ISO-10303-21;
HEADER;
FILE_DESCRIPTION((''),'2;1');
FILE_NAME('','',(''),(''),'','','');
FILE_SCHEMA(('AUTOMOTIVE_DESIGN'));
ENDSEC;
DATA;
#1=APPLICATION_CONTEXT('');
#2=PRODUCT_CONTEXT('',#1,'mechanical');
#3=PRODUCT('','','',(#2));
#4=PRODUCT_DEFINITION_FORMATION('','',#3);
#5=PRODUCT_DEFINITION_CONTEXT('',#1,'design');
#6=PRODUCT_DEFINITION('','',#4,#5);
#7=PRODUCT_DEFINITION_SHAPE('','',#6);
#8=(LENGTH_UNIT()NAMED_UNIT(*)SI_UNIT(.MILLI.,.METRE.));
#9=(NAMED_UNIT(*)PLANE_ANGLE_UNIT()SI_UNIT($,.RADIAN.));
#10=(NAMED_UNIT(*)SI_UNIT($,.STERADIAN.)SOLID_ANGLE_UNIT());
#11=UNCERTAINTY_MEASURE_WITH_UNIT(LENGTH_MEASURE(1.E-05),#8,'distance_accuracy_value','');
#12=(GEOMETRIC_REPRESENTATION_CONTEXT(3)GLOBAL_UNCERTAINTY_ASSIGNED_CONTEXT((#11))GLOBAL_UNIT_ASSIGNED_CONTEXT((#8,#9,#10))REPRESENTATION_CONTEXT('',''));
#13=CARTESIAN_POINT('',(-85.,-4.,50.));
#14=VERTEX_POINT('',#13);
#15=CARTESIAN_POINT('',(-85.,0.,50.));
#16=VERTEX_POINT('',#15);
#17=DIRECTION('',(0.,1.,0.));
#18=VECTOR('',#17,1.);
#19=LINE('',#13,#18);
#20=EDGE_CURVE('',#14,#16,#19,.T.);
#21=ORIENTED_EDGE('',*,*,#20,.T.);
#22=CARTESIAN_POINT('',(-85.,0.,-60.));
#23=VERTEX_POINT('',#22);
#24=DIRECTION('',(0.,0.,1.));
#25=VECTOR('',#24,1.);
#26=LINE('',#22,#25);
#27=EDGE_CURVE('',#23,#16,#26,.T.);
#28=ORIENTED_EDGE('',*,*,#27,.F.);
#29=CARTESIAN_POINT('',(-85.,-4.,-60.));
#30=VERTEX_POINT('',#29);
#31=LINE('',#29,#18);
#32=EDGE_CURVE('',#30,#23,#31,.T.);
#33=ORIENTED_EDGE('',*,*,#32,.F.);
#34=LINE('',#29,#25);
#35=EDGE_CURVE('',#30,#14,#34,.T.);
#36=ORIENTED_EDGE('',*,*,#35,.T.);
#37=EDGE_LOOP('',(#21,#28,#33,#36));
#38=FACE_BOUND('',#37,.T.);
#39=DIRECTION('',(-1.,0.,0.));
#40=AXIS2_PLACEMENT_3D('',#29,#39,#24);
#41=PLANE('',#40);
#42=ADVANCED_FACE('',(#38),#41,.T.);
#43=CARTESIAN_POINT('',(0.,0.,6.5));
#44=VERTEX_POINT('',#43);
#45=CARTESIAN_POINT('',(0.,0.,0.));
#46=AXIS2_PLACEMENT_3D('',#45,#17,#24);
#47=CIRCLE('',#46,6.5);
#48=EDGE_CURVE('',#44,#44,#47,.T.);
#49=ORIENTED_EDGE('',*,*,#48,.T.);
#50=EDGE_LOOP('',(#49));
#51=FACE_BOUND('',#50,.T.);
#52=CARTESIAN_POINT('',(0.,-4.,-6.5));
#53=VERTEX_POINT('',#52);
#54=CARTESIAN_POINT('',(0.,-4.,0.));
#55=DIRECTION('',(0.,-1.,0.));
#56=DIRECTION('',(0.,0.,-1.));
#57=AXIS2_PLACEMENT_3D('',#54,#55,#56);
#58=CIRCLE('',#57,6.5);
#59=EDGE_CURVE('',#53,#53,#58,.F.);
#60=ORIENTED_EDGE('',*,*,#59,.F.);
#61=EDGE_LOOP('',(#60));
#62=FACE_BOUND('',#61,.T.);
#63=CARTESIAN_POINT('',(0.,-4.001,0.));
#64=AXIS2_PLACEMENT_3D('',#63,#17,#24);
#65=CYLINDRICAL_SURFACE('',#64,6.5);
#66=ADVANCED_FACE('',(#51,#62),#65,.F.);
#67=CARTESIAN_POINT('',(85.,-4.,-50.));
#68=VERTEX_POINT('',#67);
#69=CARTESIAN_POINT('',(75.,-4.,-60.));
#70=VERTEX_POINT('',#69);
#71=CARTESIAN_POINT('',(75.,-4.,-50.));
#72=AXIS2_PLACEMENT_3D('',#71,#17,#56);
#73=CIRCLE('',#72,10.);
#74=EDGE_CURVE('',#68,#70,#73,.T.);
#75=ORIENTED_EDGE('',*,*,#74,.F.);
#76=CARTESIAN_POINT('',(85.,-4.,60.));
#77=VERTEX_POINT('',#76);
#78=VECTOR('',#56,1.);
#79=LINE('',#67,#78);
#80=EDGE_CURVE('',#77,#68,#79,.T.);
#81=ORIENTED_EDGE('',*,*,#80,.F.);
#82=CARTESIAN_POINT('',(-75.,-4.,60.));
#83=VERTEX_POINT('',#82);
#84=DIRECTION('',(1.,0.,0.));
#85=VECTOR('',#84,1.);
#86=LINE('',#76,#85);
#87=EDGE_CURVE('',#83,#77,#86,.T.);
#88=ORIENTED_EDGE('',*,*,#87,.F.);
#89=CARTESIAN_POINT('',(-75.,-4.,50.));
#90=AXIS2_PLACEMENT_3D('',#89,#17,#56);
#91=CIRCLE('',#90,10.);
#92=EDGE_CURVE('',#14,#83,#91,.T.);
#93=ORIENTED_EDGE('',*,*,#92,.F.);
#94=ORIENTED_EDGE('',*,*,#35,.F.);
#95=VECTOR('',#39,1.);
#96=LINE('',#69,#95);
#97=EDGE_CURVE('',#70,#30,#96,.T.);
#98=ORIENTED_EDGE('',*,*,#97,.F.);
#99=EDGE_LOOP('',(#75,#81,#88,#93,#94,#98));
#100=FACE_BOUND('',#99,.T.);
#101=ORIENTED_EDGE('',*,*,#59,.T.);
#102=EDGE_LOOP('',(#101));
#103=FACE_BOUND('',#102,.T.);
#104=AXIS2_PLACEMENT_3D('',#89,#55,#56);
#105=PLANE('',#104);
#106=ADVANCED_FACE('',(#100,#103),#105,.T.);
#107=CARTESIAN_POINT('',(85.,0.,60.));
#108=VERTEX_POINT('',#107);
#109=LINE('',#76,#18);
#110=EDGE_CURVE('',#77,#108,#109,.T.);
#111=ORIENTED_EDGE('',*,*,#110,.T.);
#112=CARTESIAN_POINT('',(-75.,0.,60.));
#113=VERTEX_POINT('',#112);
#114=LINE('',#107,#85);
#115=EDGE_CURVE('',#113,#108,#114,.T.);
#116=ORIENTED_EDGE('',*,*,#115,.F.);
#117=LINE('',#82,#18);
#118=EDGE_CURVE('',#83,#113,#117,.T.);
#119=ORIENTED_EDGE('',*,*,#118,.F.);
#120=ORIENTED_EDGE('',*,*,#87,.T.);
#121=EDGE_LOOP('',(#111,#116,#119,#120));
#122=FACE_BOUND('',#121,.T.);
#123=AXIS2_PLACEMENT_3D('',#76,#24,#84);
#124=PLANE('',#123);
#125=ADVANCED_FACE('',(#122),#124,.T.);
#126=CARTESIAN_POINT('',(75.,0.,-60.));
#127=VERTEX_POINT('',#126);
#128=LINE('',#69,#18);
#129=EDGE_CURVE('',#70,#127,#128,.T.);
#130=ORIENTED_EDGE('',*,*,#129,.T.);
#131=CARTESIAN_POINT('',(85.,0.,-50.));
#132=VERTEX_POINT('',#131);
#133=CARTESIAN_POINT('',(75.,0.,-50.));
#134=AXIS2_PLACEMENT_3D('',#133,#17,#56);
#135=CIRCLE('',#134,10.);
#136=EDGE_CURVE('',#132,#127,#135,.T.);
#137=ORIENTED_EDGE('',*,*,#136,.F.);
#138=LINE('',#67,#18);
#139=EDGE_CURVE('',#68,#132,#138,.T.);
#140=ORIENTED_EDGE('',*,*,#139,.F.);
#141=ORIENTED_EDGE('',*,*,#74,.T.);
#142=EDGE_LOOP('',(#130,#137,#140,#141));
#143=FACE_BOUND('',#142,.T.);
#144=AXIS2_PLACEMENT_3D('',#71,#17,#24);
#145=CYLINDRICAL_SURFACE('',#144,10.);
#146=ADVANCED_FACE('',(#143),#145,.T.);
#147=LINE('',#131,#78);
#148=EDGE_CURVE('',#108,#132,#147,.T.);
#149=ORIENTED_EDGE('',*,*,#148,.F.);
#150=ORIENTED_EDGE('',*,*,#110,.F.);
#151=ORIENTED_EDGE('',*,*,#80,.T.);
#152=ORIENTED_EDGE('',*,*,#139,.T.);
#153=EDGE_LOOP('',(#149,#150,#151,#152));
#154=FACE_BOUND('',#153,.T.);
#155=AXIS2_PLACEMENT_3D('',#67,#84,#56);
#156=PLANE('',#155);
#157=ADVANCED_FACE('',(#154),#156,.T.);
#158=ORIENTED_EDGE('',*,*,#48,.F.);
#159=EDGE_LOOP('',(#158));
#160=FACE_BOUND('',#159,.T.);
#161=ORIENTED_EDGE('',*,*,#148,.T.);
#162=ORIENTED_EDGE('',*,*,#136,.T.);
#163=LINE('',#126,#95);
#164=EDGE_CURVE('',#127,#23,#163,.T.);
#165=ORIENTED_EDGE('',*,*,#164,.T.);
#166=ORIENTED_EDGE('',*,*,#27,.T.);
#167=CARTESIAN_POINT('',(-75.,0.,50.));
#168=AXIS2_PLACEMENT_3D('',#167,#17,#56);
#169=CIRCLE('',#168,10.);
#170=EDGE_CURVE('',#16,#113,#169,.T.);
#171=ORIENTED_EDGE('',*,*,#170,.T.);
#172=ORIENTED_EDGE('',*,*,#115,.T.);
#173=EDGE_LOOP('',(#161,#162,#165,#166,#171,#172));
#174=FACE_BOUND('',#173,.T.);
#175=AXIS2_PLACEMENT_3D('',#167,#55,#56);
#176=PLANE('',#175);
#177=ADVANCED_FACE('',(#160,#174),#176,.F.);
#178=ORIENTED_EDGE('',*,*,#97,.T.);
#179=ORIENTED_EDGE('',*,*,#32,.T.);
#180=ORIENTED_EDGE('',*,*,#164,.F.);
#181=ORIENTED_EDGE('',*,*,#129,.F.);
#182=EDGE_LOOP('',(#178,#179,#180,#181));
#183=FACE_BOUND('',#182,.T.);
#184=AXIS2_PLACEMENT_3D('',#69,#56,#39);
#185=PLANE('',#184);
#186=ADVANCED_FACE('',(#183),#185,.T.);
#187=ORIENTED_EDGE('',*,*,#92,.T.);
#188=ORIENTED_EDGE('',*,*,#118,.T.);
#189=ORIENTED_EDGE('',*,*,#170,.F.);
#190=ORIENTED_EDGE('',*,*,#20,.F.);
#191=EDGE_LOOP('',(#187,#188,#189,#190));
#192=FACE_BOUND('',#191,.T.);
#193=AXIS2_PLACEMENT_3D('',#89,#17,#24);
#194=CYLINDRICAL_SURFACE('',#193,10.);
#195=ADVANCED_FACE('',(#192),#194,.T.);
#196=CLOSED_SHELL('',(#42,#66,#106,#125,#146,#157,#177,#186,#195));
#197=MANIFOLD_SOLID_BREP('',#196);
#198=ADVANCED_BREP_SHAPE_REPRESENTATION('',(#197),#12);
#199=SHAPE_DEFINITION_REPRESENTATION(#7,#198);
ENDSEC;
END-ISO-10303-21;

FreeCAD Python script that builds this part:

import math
import FreeCAD as App
import Part
import Sketcher

doc = App.newDocument("Part")
body = doc.addObject("PartDesign::Body", "Body")

# Sketch on XZ plane
sketch1 = doc.addObject("Sketcher::SketchObject", "Sketch")
body.addObject(sketch1)
sketch1.AttachmentSupport = (doc.XZ_Plane, [""])
sketch1.MapMode = "FlatFace"
sketch1.addGeometry([
    Part.LineSegment(App.Vector(75, -60, 0), App.Vector(-85, -60, 0)),  # 0
    Part.LineSegment(App.Vector(-85, -60, 0), App.Vector(-85, 50, 0)),  # 1
    Part.ArcOfCircle(Part.Circle(App.Vector(-75, 50, 0), App.Vector(0, 0, 1), 10), math.radians(90), math.radians(180)),  # 2
    Part.LineSegment(App.Vector(-75, 60, 0), App.Vector(85, 60, 0)),  # 3
    Part.LineSegment(App.Vector(85, 60, 0), App.Vector(85, -50, 0)),  # 4
    Part.ArcOfCircle(Part.Circle(App.Vector(75, -50, 0), App.Vector(0, 0, 1), 10), math.radians(-90), math.radians(0)),  # 5
], False)
sketch1.addConstraint([
    Sketcher.Constraint("Coincident", 0, 2, 1, 1),
    Sketcher.Constraint("Tangent", 1, 2, 2, 2),
    Sketcher.Constraint("Tangent", 2, 1, 3, 1),
    Sketcher.Constraint("Coincident", 3, 2, 4, 1),
    Sketcher.Constraint("Tangent", 4, 2, 5, 2),
    Sketcher.Constraint("Tangent", 5, 1, 0, 1),
    Sketcher.Constraint("Horizontal", 0),
    Sketcher.Constraint("Vertical", 1),
    Sketcher.Constraint("Horizontal", 3),
    Sketcher.Constraint("Vertical", 4),
    Sketcher.Constraint("Equal", 2, 5),
    Sketcher.Constraint("Symmetric", 2, 3, 5, 3, -1, 1),
    Sketcher.Constraint("Radius", 2, 10.0),
    Sketcher.Constraint("DistanceX", 0, 2, 0, 1, 160.0),
    Sketcher.Constraint("DistanceY", 1, 1, 1, 2, 110.0),
])
pad1 = doc.addObject("PartDesign::Pad", "Pad")
body.addObject(pad1)
pad1.Profile = sketch1
pad1.Length = 4

# Sketch on XZ plane
sketch2 = doc.addObject("Sketcher::SketchObject", "Sketch001")
body.addObject(sketch2)
sketch2.AttachmentSupport = (doc.XZ_Plane, [""])
sketch2.MapMode = "FlatFace"
sketch2.addGeometry(Part.Circle(App.Vector(0, 0, 0), App.Vector(0, 0, 1), 6.5), False)
sketch2.addConstraint([
    Sketcher.Constraint("Coincident", 0, 3, -1, 1),
    Sketcher.Constraint("Diameter", 0, 13.0),
])
pocket1 = doc.addObject("PartDesign::Pocket", "Pocket")
body.addObject(pocket1)
pocket1.Profile = sketch2
pocket1.Type = "UpToFirst"
pocket1.Reversed = True

doc.recompute()
